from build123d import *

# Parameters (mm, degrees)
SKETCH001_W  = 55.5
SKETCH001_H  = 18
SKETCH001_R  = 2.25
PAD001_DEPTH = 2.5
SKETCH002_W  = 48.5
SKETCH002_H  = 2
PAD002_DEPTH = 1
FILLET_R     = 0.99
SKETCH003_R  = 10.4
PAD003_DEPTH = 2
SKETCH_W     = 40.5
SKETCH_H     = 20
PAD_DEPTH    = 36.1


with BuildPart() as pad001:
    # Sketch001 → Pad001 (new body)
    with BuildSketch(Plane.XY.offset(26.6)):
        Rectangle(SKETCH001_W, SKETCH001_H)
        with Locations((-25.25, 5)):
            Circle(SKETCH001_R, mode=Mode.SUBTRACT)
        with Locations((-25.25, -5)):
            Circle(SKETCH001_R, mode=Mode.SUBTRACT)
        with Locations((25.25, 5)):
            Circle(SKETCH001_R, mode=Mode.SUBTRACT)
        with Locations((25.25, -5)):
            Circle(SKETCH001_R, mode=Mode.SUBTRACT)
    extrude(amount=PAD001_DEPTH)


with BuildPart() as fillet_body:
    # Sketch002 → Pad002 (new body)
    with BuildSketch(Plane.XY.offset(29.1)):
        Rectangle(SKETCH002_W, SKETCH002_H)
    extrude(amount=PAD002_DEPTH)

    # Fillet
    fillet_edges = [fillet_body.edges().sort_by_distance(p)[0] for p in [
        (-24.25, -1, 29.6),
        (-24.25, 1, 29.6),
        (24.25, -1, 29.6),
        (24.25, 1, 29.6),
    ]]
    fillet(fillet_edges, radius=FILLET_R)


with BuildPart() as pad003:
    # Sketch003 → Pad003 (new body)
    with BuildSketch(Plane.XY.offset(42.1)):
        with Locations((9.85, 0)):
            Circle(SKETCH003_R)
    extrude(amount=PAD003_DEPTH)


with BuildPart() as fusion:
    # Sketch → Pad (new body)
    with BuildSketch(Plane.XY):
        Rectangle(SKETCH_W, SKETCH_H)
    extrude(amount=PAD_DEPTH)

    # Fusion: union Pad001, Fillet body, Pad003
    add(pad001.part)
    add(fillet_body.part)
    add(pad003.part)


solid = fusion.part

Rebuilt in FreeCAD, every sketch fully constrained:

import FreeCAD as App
import Part
import Sketcher

V = App.Vector
Q = App.Units.Quantity


def edges_at(feature, points):
    """Names of the edges that pass closest to the given points."""
    edges = feature.Shape.Edges
    near = lambda p: min(range(len(edges)), key=lambda i: edges[i].distToShape(Part.Vertex(*p))[0])
    return sorted({f"Edge{near(p) + 1}" for p in points})


def add_polygon(sketch, points):
    """Adds a closed chain of lines whose ends are joined by coincident constraints."""
    first, n = sketch.GeometryCount, len(points)
    for a, b in zip(points, points[1:] + points[:1]):
        sketch.addGeometry(Part.LineSegment(App.Vector(*a, 0), App.Vector(*b, 0)), False)
    for i in range(n):
        sketch.addConstraint(Sketcher.Constraint("Coincident", first + i, 2, first + (i + 1) % n, 1))

doc = App.newDocument("Part")
body = doc.addObject("PartDesign::Body", "Body")

# Sketch on XY plane
sketch1 = body.newObject("Sketcher::SketchObject", "Sketch")
sketch1.AttachmentSupport = (doc.getObject("XY_Plane"), [""])
sketch1.MapMode = "FlatFace"
sketch1.AttachmentOffset = App.Placement(V(0, 0, 26.6), App.Rotation())
add_polygon(sketch1, [(-27.75, 9), (-27.75, -9), (27.75, -9), (27.75, 9)])  # lines 0-3
sketch1.addGeometry(Part.Circle(V(-25.25, -5, 0), V(0, 0, 1), 2.25), False)  # 4
sketch1.addGeometry(Part.Circle(V(25.25, -5, 0), V(0, 0, 1), 2.25), False)  # 5
sketch1.addGeometry(Part.Circle(V(-25.25, 5, 0), V(0, 0, 1), 2.25), False)  # 6
sketch1.addGeometry(Part.Circle(V(25.25, 5, 0), V(0, 0, 1), 2.25), False)  # 7
sketch1.addConstraint([
    Sketcher.Constraint("Vertical", 0),
    Sketcher.Constraint("Horizontal", 1),
    Sketcher.Constraint("Vertical", 2),
    Sketcher.Constraint("Horizontal", 3),
    Sketcher.Constraint("Equal", 4, 5),
    Sketcher.Constraint("Equal", 5, 6),
    Sketcher.Constraint("Equal", 6, 7),
    Sketcher.Constraint("Symmetric", 5, 3, 6, 3, -1, 1),
    Sketcher.Constraint("Symmetric", 4, 3, 7, 3, -1, 1),
    Sketcher.Constraint("Symmetric", 0, 2, 2, 2, -1, 1),
    Sketcher.Constraint("Symmetric", 4, 3, 5, 3, -2),
    Sketcher.Constraint("Diameter", 4, Q("4.5 mm")),
    Sketcher.Constraint("DistanceY", 0, 2, 0, 1, Q("18 mm")),
    Sketcher.Constraint("DistanceX", 1, 1, 1, 2, Q("55.5 mm")),
    Sketcher.Constraint("DistanceY", 4, 3, -1, 1, Q("5 mm")),
    Sketcher.Constraint("DistanceX", 0, 2, 5, 3, Q("53 mm")),
])
pad1 = body.newObject("PartDesign::Pad", "Pad")
pad1.Profile = sketch1
pad1.Length = 2.5
body2 = doc.addObject("PartDesign::Body", "Body001")

# Sketch on XY plane
sketch2 = body2.newObject("Sketcher::SketchObject", "Sketch001")
sketch2.AttachmentSupport = (doc.getObject("XY_Plane001"), [""])
sketch2.MapMode = "FlatFace"
sketch2.AttachmentOffset = App.Placement(V(0, 0, 29.1), App.Rotation())
add_polygon(sketch2, [(-24.25, 1), (-24.25, -1), (24.25, -1), (24.25, 1)])  # lines 0-3
sketch2.addConstraint([
    Sketcher.Constraint("Vertical", 0),
    Sketcher.Constraint("Horizontal", 1),
    Sketcher.Constraint("Vertical", 2),
    Sketcher.Constraint("Horizontal", 3),
    Sketcher.Constraint("Symmetric", 0, 2, 2, 2, -1, 1),
    Sketcher.Constraint("DistanceY", 0, 2, 0, 1, Q("2 mm")),
    Sketcher.Constraint("DistanceX", 1, 1, 1, 2, Q("48.5 mm")),
])
pad2 = body2.newObject("PartDesign::Pad", "Pad001")
pad2.Profile = sketch2
pad2.Length = 1
doc.recompute()

fillet = body2.newObject("PartDesign::Fillet", "Fillet")
fillet.Base = (pad2, edges_at(pad2, [
    (-24.25, -1, 29.6),
    (-24.25, 1, 29.6),
    (24.25, -1, 29.6),
    (24.25, 1, 29.6),
]))
fillet.Radius = 0.99
body3 = doc.addObject("PartDesign::Body", "Body002")

# Sketch on XY plane
sketch3 = body3.newObject("Sketcher::SketchObject", "Sketch002")
sketch3.AttachmentSupport = (doc.getObject("XY_Plane002"), [""])
sketch3.MapMode = "FlatFace"
sketch3.AttachmentOffset = App.Placement(V(0, 0, 42.1), App.Rotation())
sketch3.addGeometry(Part.Circle(V(9.85, 0, 0), V(0, 0, 1), 10.4), False)
sketch3.addConstraint([
    Sketcher.Constraint("PointOnObject", 0, 3, -1),
    Sketcher.Constraint("Diameter", 0, Q("20.8 mm")),
    Sketcher.Constraint("DistanceX", -1, 1, 0, 3, Q("9.85 mm")),
])
pad3 = body3.newObject("PartDesign::Pad", "Pad002")
pad3.Profile = sketch3
pad3.Length = 2
body4 = doc.addObject("PartDesign::Body", "Body003")
body4.AllowCompound = True

# Sketch on XY plane
sketch4 = body4.newObject("Sketcher::SketchObject", "Sketch003")
sketch4.AttachmentSupport = (doc.getObject("XY_Plane003"), [""])
sketch4.MapMode = "FlatFace"
add_polygon(sketch4, [(-20.25, 10), (-20.25, -10), (20.25, -10), (20.25, 10)])  # lines 0-3
sketch4.addConstraint([
    Sketcher.Constraint("Vertical", 0),
    Sketcher.Constraint("Horizontal", 1),
    Sketcher.Constraint("Vertical", 2),
    Sketcher.Constraint("Horizontal", 3),
    Sketcher.Constraint("Symmetric", 0, 2, 2, 2, -1, 1),
    Sketcher.Constraint("DistanceY", 0, 2, 0, 1, Q("20 mm")),
    Sketcher.Constraint("DistanceX", 1, 1, 1, 2, Q("40.5 mm")),
])
pad4 = body4.newObject("PartDesign::Pad", "Pad003")
pad4.Profile = sketch4
pad4.Length = 36.1
doc.recompute()

boolean = body4.newObject("PartDesign::Boolean", "Boolean")
boolean.Type = "Fuse"
boolean.addObjects([body])
doc.recompute()

boolean2 = body4.newObject("PartDesign::Boolean", "Boolean001")
boolean2.Type = "Fuse"
boolean2.addObjects([body2])
doc.recompute()

boolean3 = body4.newObject("PartDesign::Boolean", "Boolean002")
boolean3.Type = "Fuse"
boolean3.addObjects([body3])

doc.recompute()
